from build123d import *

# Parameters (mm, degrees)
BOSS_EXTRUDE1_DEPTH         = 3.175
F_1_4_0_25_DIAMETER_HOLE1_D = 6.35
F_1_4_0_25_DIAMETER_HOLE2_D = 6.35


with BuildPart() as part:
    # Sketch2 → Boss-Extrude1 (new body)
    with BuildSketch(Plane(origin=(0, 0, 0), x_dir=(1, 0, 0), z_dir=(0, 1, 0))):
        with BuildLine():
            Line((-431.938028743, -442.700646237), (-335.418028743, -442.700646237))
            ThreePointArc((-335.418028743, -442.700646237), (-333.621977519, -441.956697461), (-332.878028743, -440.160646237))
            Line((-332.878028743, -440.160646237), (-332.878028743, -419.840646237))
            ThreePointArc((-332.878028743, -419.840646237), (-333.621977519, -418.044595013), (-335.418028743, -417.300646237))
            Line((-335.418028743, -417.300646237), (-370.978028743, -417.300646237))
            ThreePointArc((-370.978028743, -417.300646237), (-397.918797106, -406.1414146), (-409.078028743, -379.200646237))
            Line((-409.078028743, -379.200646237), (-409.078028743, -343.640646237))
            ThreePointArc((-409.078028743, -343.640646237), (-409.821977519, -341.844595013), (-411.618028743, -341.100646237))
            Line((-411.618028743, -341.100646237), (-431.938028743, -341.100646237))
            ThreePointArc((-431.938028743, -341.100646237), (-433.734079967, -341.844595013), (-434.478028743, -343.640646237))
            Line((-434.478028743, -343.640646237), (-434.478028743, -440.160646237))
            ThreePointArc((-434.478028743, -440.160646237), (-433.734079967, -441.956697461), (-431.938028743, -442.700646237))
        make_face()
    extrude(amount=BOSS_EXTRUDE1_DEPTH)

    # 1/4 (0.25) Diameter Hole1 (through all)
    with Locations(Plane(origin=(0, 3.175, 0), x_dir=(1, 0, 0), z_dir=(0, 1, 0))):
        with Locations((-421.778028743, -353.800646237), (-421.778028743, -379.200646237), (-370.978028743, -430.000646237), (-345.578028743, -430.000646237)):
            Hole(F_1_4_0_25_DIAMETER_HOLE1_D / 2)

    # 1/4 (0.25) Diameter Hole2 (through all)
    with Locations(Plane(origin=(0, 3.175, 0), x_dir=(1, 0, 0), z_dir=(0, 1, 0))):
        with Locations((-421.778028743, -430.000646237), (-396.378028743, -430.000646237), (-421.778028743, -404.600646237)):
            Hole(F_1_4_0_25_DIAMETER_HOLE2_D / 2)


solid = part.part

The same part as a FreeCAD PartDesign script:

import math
import FreeCAD as App
import Part
import Sketcher

V = App.Vector
Q = App.Units.Quantity

doc = App.newDocument("Part")
body = doc.addObject("PartDesign::Body", "Body")

# Sketch on XZ plane
sketch1 = doc.addObject("Sketcher::SketchObject", "Sketch")
body.addObject(sketch1)
sketch1.AttachmentSupport = (doc.XZ_Plane, [""])
sketch1.MapMode = "FlatFace"
sketch1.addGeometry(Part.LineSegment(V(-431.9, 442.7, 0), V(-335.4, 442.7, 0)), False)
sketch1.addGeometry(Part.ArcOfCircle(Part.Circle(V(-335.4, 440.2, 0), V(0, 0, 1), 2.5), math.radians(0), math.radians(90)), False)
sketch1.addGeometry(Part.LineSegment(V(-332.9, 440.2, 0), V(-332.9, 419.8, 0)), False)
sketch1.addGeometry(Part.ArcOfCircle(Part.Circle(V(-335.4, 419.8, 0), V(0, 0, 1), 2.5), math.radians(-90), math.radians(0)), False)
sketch1.addGeometry(Part.LineSegment(V(-335.4, 417.3, 0), V(-371, 417.3, 0)), False)
sketch1.addGeometry(Part.ArcOfCircle(Part.Circle(V(-371, 379.2, 0), V(0, 0, 1), 38.1), math.radians(90), math.radians(180)), False)
sketch1.addGeometry(Part.LineSegment(V(-409.1, 379.2, 0), V(-409.1, 343.6, 0)), False)
sketch1.addGeometry(Part.ArcOfCircle(Part.Circle(V(-411.6, 343.6, 0), V(0, 0, 1), 2.5), math.radians(-90), math.radians(0)), False)
sketch1.addGeometry(Part.LineSegment(V(-411.6, 341.1, 0), V(-431.9, 341.1, 0)), False)
sketch1.addGeometry(Part.ArcOfCircle(Part.Circle(V(-431.9, 343.6, 0), V(0, 0, 1), 2.5), math.radians(-180), math.radians(-90)), False)
sketch1.addGeometry(Part.LineSegment(V(-434.5, 343.6, 0), V(-434.5, 440.2, 0)), False)
sketch1.addGeometry(Part.ArcOfCircle(Part.Circle(V(-431.9, 440.2, 0), V(0, 0, 1), 2.5), math.radians(90), math.radians(180)), False)
sketch1.addConstraint(Sketcher.Constraint("Tangent", 0, 2, 1, 2))
sketch1.addConstraint(Sketcher.Constraint("Tangent", 1, 1, 2, 1))
sketch1.addConstraint(Sketcher.Constraint("Tangent", 2, 2, 3, 2))
sketch1.addConstraint(Sketcher.Constraint("Tangent", 3, 1, 4, 1))
sketch1.addConstraint(Sketcher.Constraint("Tangent", 4, 2, 5, 1))
sketch1.addConstraint(Sketcher.Constraint("Tangent", 5, 2, 6, 1))
sketch1.addConstraint(Sketcher.Constraint("Tangent", 6, 2, 7, 2))
sketch1.addConstraint(Sketcher.Constraint("Tangent", 7, 1, 8, 1))
sketch1.addConstraint(Sketcher.Constraint("Tangent", 8, 2, 9, 2))
sketch1.addConstraint(Sketcher.Constraint("Tangent", 9, 1, 10, 1))
sketch1.addConstraint(Sketcher.Constraint("Tangent", 10, 2, 11, 2))
sketch1.addConstraint(Sketcher.Constraint("Tangent", 11, 1, 0, 1))
sketch1.addConstraint(Sketcher.Constraint("Horizontal", 0))
sketch1.addConstraint(Sketcher.Constraint("Vertical", 2))
sketch1.addConstraint(Sketcher.Constraint("Horizontal", 4))
sketch1.addConstraint(Sketcher.Constraint("Vertical", 6))
sketch1.addConstraint(Sketcher.Constraint("Horizontal", 8))
sketch1.addConstraint(Sketcher.Constraint("Vertical", 10))
sketch1.addConstraint(Sketcher.Constraint("Equal", 1, 3))
sketch1.addConstraint(Sketcher.Constraint("Equal", 3, 7))
sketch1.addConstraint(Sketcher.Constraint("Equal", 7, 9))
sketch1.addConstraint(Sketcher.Constraint("Equal", 9, 11))
sketch1.addConstraint(Sketcher.Constraint("Equal", 8, 2))
sketch1.addConstraint(Sketcher.Constraint("Equal", 4, 6))
sketch1.addConstraint(Sketcher.Constraint("Radius", 1, Q("0.1 in")))
sketch1.addConstraint(Sketcher.Constraint("Radius", 5, Q("1.5 in")))
sketch1.addConstraint(Sketcher.Constraint("DistanceX", 0, 1, 0, 2, Q("3.8 in")))
sketch1.addConstraint(Sketcher.Constraint("DistanceX", 4, 2, 4, 1, Q("1.4 in")))
sketch1.addConstraint(Sketcher.Constraint("DistanceX", 1, 3, -1, 1, 335.418029))
sketch1.addConstraint(Sketcher.Constraint("DistanceY", -1, 1, 1, 3, 440.160646))
pad1 = doc.addObject("PartDesign::Pad", "Pad")
body.addObject(pad1)
pad1.Profile = sketch1
pad1.Length = Q("0.125 in")
pad1.Reversed = True

# Sketch on XZ plane
sketch2 = doc.addObject("Sketcher::SketchObject", "Sketch001")
body.addObject(sketch2)
sketch2.AttachmentSupport = (doc.XZ_Plane, [""])
sketch2.MapMode = "FlatFace"
sketch2.AttachmentOffset = App.Placement(V(0, 0, -0.125 * 25.4), App.Rotation())
sketch2.addGeometry(Part.Circle(V(-421.8, 353.8, 0), V(0, 0, 1), 3.2), False)
sketch2.addGeometry(Part.Circle(V(-421.8, 379.2, 0), V(0, 0, 1), 3.2), False)
sketch2.addGeometry(Part.Circle(V(-371, 430, 0), V(0, 0, 1), 3.2), False)
sketch2.addGeometry(Part.Circle(V(-345.6, 430, 0), V(0, 0, 1), 3.2), False)
sketch2.addConstraint(Sketcher.Constraint("Equal", 0, 1))
sketch2.addConstraint(Sketcher.Constraint("Equal", 1, 2))
sketch2.addConstraint(Sketcher.Constraint("Equal", 2, 3))
sketch2.addConstraint(Sketcher.Constraint("Horizontal", 2, 3, 3, 3))
sketch2.addConstraint(Sketcher.Constraint("Vertical", 0, 3, 1, 3))
sketch2.addConstraint(Sketcher.Constraint("Diameter", 0, Q("0.25 in")))
sketch2.addConstraint(Sketcher.Constraint("DistanceY", 0, 3, 1, 3, Q("1 in")))
sketch2.addConstraint(Sketcher.Constraint("DistanceX", 1, 3, 2, 3, Q("2 in")))
sketch2.addConstraint(Sketcher.Constraint("DistanceY", 1, 3, 2, 3, Q("2 in")))
sketch2.addConstraint(Sketcher.Constraint("DistanceX", 2, 3, 3, 3, Q("1 in")))
sketch2.addConstraint(Sketcher.Constraint("DistanceX", 0, 3, -1, 1, 421.778029))
sketch2.addConstraint(Sketcher.Constraint("DistanceY", -1, 1, 0, 3, 353.800646))
doc.recompute()
hole = doc.addObject("PartDesign::Hole", "Hole")
body.addObject(hole)
hole.Profile = sketch2
hole.ThreadType = "None"
hole.Diameter = Q("0.25 in")
hole.DepthType = "ThroughAll"
hole.Reversed = True

# Sketch on XZ plane
sketch3 = doc.addObject("Sketcher::SketchObject", "Sketch002")
body.addObject(sketch3)
sketch3.AttachmentSupport = (doc.XZ_Plane, [""])
sketch3.MapMode = "FlatFace"
sketch3.AttachmentOffset = App.Placement(V(0, 0, -0.125 * 25.4), App.Rotation())
sketch3.addGeometry(Part.Circle(V(-421.8, 430, 0), V(0, 0, 1), 3.2), False)
sketch3.addGeometry(Part.Circle(V(-396.4, 430, 0), V(0, 0, 1), 3.2), False)
sketch3.addGeometry(Part.Circle(V(-421.8, 404.6, 0), V(0, 0, 1), 3.2), False)
sketch3.addConstraint(Sketcher.Constraint("Equal", 0, 1))
sketch3.addConstraint(Sketcher.Constraint("Equal", 1, 2))
sketch3.addConstraint(Sketcher.Constraint("Horizontal", 0, 3, 1, 3))
sketch3.addConstraint(Sketcher.Constraint("Vertical", 0, 3, 2, 3))
sketch3.addConstraint(Sketcher.Constraint("Diameter", 0, Q("0.25 in")))
sketch3.addConstraint(Sketcher.Constraint("DistanceX", 0, 3, 1, 3, Q("1 in")))
sketch3.addConstraint(Sketcher.Constraint("DistanceY", 2, 3, 0, 3, Q("1 in")))
sketch3.addConstraint(Sketcher.Constraint("DistanceX", 0, 3, -1, 1, 421.778029))
sketch3.addConstraint(Sketcher.Constraint("DistanceY", -1, 1, 0, 3, 430.000646))
doc.recompute()
hole2 = doc.addObject("PartDesign::Hole", "Hole001")
body.addObject(hole2)
hole2.Profile = sketch3
hole2.ThreadType = "None"
hole2.Diameter = Q("0.25 in")
hole2.DepthType = "ThroughAll"
hole2.Reversed = True

doc.recompute()
